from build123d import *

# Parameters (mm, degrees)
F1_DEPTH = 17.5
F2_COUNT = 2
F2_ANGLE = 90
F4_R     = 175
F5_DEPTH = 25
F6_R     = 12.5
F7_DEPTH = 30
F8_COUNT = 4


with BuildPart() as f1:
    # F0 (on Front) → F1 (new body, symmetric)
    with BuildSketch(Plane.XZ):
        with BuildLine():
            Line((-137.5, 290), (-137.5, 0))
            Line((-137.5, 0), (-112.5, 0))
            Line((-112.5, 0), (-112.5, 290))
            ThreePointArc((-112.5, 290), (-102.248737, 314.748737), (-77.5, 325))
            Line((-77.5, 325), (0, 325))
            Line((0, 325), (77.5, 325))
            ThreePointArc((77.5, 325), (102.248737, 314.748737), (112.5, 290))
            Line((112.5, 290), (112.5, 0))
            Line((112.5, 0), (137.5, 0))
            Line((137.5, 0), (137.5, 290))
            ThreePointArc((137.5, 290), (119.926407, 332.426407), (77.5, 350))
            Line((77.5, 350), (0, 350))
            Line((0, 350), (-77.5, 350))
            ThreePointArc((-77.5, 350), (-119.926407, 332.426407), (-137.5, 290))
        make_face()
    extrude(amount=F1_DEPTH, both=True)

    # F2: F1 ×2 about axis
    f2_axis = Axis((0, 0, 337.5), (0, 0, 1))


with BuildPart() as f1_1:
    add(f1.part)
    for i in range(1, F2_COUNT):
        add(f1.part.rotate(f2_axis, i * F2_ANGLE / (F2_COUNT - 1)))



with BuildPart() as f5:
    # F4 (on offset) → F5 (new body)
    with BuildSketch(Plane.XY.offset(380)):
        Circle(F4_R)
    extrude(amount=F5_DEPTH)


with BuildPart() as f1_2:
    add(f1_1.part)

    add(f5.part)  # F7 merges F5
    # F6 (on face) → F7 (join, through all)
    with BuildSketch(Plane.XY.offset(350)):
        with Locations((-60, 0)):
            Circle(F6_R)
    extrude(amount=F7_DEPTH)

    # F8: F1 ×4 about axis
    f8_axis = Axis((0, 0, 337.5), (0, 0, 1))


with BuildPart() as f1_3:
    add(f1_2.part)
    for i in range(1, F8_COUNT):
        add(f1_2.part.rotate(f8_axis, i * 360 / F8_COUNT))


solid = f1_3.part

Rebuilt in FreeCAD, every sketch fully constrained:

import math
import FreeCAD as App
import Part
import Sketcher
from FreeCAD import Vector

doc = App.newDocument("Part")
body = doc.addObject("PartDesign::Body", "Body")

sketch1 = body.newObject("Sketcher::SketchObject", "Sketch")
sketch1.AttachmentSupport = (doc.getObject("XZ_Plane"), [""])
sketch1.MapMode = "FlatFace"
sketch1.addGeometry(Part.LineSegment(Vector(-138, 290, 0), Vector(-138, 0, 0)), False)
sketch1.addGeometry(Part.LineSegment(Vector(-138, 0, 0), Vector(-112, 0, 0)), False)
sketch1.addGeometry(Part.LineSegment(Vector(-112, 0, 0), Vector(-112, 290, 0)), False)
sketch1.addGeometry(Part.ArcOfCircle(Part.Circle(Vector(-77, 290, 0), Vector(0, 0, 1), 35), math.radians(90), math.radians(180)), False)
sketch1.addGeometry(Part.LineSegment(Vector(-78, 325, 0), Vector(78, 325, 0)), False)
sketch1.addGeometry(Part.ArcOfCircle(Part.Circle(Vector(77, 290, 0), Vector(0, 0, 1), 35), math.radians(0), math.radians(90)), False)
sketch1.addGeometry(Part.LineSegment(Vector(112, 290, 0), Vector(112, 0, 0)), False)
sketch1.addGeometry(Part.LineSegment(Vector(112, 0, 0), Vector(138, 0, 0)), False)
sketch1.addGeometry(Part.LineSegment(Vector(138, 0, 0), Vector(138, 290, 0)), False)
sketch1.addGeometry(Part.ArcOfCircle(Part.Circle(Vector(78, 290, 0), Vector(0, 0, 1), 60), math.radians(0), math.radians(90)), False)
sketch1.addGeometry(Part.LineSegment(Vector(78, 350, 0), Vector(-78, 350, 0)), False)
sketch1.addGeometry(Part.ArcOfCircle(Part.Circle(Vector(-78, 290, 0), Vector(0, 0, 1), 60), math.radians(90), math.radians(180)), False)
sketch1.addConstraint(Sketcher.Constraint("Coincident", 0, 2, 1, 1))
sketch1.addConstraint(Sketcher.Constraint("Coincident", 1, 2, 2, 1))
sketch1.addConstraint(Sketcher.Constraint("Tangent", 2, 2, 3, 2))
sketch1.addConstraint(Sketcher.Constraint("Tangent", 3, 1, 4, 1))
sketch1.addConstraint(Sketcher.Constraint("Tangent", 4, 2, 5, 2))
sketch1.addConstraint(Sketcher.Constraint("Tangent", 5, 1, 6, 1))
sketch1.addConstraint(Sketcher.Constraint("Coincident", 6, 2, 7, 1))
sketch1.addConstraint(Sketcher.Constraint("Coincident", 7, 2, 8, 1))
sketch1.addConstraint(Sketcher.Constraint("Tangent", 8, 2, 9, 1))
sketch1.addConstraint(Sketcher.Constraint("Tangent", 9, 2, 10, 1))
sketch1.addConstraint(Sketcher.Constraint("Tangent", 10, 2, 11, 1))
sketch1.addConstraint(Sketcher.Constraint("Tangent", 11, 2, 0, 1))
sketch1.addConstraint(Sketcher.Constraint("Vertical", 0))
sketch1.addConstraint(Sketcher.Constraint("Horizontal", 1))
sketch1.addConstraint(Sketcher.Constraint("Vertical", 2))
sketch1.addConstraint(Sketcher.Constraint("Horizontal", 4))
sketch1.addConstraint(Sketcher.Constraint("Vertical", 6))
sketch1.addConstraint(Sketcher.Constraint("Horizontal", 7))
sketch1.addConstraint(Sketcher.Constraint("Vertical", 8))
sketch1.addConstraint(Sketcher.Constraint("Horizontal", 10))
sketch1.addConstraint(Sketcher.Constraint("Coincident", 9, 3, 5, 3))
sketch1.addConstraint(Sketcher.Constraint("Coincident", 11, 3, 3, 3))
sketch1.addConstraint(Sketcher.Constraint("Equal", 3, 5))
sketch1.addConstraint(Sketcher.Constraint("Symmetric", 1, 2, 6, 2, -1, 1))
sketch1.addConstraint(Sketcher.Constraint("PointOnObject", 0, 2, -1))
sketch1.addConstraint(Sketcher.Constraint("Radius", 3, 35.000001))
sketch1.addConstraint(Sketcher.Constraint("Radius", 9, 60.0))
sketch1.addConstraint(Sketcher.Constraint("DistanceX", 4, 1, 4, 2, 155.0))
sketch1.addConstraint(Sketcher.Constraint("DistanceY", 0, 2, 0, 1, 290.0))
pad1 = body.newObject("PartDesign::Pad", "Pad")
pad1.Profile = sketch1
pad1.Length = 35
pad1.Midplane = True
body2 = doc.addObject("PartDesign::Body", "Body001")
doc.recompute()

body2.BaseFeature = body
doc.recompute()

body.Placement = App.Placement(Vector(0, 0, 0), App.Rotation(Vector(0, 0, 1), 90))
boolean = body2.newObject("PartDesign::Boolean", "Boolean")
boolean.Type = "Fuse"
boolean.addObjects([body])
body3 = doc.addObject("PartDesign::Body", "Body002")

sketch2 = body3.newObject("Sketcher::SketchObject", "Sketch001")
sketch2.AttachmentSupport = (doc.getObject("XY_Plane002"), [""])
sketch2.MapMode = "FlatFace"
sketch2.AttachmentOffset = App.Placement(Vector(0, 0, 380), App.Rotation())
sketch2.addGeometry(Part.Circle(Vector(0, 0, 0), Vector(0, 0, 1), 175), False)
sketch2.addConstraint(Sketcher.Constraint("Coincident", 0, 3, -1, 1))
sketch2.addConstraint(Sketcher.Constraint("Diameter", 0, 350.0))
pad2 = body3.newObject("PartDesign::Pad", "Pad001")
pad2.Profile = sketch2
pad2.Length = 25
body2.AllowCompound = True
doc.recompute()

boolean2 = body2.newObject("PartDesign::Boolean", "Boolean001")
boolean2.Type = "Fuse"
boolean2.addObjects([body3])

sketch3 = body2.newObject("Sketcher::SketchObject", "Sketch002")
sketch3.AttachmentSupport = (doc.getObject("XY_Plane001"), [""])
sketch3.MapMode = "FlatFace"
sketch3.AttachmentOffset = App.Placement(Vector(0, 0, 350), App.Rotation())
sketch3.addGeometry(Part.Circle(Vector(-60, 0, 0), Vector(0, 0, 1), 12), False)
sketch3.addConstraint(Sketcher.Constraint("PointOnObject", 0, 3, -1))
sketch3.addConstraint(Sketcher.Constraint("Diameter", 0, 25.0))
sketch3.addConstraint(Sketcher.Constraint("DistanceX", 0, 3, -1, 1, 60.0))
pad3 = body2.newObject("PartDesign::Pad", "Pad002")
pad3.Profile = sketch3
pad3.Type = "UpToLast"
body4 = doc.addObject("PartDesign::Body", "Body003")
doc.recompute()

body4.BaseFeature = body2
doc.recompute()

body5 = doc.addObject("PartDesign::Body", "Body004")
body5.BaseFeature = body2
body5.Placement = App.Placement(Vector(0, 0, 0), App.Rotation(Vector(0, 0, 1), 90))
boolean3 = body4.newObject("PartDesign::Boolean", "Boolean002")
boolean3.Type = "Fuse"
boolean3.addObjects([body5])
doc.recompute()

body6 = doc.addObject("PartDesign::Body", "Body005")
body6.BaseFeature = body2
body6.Placement = App.Placement(Vector(0, 0, 0), App.Rotation(Vector(0, 0, 1), 180))
boolean4 = body4.newObject("PartDesign::Boolean", "Boolean003")
boolean4.Type = "Fuse"
boolean4.addObjects([body6])
doc.recompute()

body2.Placement = App.Placement(Vector(0, 0, 0), App.Rotation(Vector(0, 0, 1), 270))
boolean5 = body4.newObject("PartDesign::Boolean", "Boolean004")
boolean5.Type = "Fuse"
boolean5.addObjects([body2])

doc.recompute()
